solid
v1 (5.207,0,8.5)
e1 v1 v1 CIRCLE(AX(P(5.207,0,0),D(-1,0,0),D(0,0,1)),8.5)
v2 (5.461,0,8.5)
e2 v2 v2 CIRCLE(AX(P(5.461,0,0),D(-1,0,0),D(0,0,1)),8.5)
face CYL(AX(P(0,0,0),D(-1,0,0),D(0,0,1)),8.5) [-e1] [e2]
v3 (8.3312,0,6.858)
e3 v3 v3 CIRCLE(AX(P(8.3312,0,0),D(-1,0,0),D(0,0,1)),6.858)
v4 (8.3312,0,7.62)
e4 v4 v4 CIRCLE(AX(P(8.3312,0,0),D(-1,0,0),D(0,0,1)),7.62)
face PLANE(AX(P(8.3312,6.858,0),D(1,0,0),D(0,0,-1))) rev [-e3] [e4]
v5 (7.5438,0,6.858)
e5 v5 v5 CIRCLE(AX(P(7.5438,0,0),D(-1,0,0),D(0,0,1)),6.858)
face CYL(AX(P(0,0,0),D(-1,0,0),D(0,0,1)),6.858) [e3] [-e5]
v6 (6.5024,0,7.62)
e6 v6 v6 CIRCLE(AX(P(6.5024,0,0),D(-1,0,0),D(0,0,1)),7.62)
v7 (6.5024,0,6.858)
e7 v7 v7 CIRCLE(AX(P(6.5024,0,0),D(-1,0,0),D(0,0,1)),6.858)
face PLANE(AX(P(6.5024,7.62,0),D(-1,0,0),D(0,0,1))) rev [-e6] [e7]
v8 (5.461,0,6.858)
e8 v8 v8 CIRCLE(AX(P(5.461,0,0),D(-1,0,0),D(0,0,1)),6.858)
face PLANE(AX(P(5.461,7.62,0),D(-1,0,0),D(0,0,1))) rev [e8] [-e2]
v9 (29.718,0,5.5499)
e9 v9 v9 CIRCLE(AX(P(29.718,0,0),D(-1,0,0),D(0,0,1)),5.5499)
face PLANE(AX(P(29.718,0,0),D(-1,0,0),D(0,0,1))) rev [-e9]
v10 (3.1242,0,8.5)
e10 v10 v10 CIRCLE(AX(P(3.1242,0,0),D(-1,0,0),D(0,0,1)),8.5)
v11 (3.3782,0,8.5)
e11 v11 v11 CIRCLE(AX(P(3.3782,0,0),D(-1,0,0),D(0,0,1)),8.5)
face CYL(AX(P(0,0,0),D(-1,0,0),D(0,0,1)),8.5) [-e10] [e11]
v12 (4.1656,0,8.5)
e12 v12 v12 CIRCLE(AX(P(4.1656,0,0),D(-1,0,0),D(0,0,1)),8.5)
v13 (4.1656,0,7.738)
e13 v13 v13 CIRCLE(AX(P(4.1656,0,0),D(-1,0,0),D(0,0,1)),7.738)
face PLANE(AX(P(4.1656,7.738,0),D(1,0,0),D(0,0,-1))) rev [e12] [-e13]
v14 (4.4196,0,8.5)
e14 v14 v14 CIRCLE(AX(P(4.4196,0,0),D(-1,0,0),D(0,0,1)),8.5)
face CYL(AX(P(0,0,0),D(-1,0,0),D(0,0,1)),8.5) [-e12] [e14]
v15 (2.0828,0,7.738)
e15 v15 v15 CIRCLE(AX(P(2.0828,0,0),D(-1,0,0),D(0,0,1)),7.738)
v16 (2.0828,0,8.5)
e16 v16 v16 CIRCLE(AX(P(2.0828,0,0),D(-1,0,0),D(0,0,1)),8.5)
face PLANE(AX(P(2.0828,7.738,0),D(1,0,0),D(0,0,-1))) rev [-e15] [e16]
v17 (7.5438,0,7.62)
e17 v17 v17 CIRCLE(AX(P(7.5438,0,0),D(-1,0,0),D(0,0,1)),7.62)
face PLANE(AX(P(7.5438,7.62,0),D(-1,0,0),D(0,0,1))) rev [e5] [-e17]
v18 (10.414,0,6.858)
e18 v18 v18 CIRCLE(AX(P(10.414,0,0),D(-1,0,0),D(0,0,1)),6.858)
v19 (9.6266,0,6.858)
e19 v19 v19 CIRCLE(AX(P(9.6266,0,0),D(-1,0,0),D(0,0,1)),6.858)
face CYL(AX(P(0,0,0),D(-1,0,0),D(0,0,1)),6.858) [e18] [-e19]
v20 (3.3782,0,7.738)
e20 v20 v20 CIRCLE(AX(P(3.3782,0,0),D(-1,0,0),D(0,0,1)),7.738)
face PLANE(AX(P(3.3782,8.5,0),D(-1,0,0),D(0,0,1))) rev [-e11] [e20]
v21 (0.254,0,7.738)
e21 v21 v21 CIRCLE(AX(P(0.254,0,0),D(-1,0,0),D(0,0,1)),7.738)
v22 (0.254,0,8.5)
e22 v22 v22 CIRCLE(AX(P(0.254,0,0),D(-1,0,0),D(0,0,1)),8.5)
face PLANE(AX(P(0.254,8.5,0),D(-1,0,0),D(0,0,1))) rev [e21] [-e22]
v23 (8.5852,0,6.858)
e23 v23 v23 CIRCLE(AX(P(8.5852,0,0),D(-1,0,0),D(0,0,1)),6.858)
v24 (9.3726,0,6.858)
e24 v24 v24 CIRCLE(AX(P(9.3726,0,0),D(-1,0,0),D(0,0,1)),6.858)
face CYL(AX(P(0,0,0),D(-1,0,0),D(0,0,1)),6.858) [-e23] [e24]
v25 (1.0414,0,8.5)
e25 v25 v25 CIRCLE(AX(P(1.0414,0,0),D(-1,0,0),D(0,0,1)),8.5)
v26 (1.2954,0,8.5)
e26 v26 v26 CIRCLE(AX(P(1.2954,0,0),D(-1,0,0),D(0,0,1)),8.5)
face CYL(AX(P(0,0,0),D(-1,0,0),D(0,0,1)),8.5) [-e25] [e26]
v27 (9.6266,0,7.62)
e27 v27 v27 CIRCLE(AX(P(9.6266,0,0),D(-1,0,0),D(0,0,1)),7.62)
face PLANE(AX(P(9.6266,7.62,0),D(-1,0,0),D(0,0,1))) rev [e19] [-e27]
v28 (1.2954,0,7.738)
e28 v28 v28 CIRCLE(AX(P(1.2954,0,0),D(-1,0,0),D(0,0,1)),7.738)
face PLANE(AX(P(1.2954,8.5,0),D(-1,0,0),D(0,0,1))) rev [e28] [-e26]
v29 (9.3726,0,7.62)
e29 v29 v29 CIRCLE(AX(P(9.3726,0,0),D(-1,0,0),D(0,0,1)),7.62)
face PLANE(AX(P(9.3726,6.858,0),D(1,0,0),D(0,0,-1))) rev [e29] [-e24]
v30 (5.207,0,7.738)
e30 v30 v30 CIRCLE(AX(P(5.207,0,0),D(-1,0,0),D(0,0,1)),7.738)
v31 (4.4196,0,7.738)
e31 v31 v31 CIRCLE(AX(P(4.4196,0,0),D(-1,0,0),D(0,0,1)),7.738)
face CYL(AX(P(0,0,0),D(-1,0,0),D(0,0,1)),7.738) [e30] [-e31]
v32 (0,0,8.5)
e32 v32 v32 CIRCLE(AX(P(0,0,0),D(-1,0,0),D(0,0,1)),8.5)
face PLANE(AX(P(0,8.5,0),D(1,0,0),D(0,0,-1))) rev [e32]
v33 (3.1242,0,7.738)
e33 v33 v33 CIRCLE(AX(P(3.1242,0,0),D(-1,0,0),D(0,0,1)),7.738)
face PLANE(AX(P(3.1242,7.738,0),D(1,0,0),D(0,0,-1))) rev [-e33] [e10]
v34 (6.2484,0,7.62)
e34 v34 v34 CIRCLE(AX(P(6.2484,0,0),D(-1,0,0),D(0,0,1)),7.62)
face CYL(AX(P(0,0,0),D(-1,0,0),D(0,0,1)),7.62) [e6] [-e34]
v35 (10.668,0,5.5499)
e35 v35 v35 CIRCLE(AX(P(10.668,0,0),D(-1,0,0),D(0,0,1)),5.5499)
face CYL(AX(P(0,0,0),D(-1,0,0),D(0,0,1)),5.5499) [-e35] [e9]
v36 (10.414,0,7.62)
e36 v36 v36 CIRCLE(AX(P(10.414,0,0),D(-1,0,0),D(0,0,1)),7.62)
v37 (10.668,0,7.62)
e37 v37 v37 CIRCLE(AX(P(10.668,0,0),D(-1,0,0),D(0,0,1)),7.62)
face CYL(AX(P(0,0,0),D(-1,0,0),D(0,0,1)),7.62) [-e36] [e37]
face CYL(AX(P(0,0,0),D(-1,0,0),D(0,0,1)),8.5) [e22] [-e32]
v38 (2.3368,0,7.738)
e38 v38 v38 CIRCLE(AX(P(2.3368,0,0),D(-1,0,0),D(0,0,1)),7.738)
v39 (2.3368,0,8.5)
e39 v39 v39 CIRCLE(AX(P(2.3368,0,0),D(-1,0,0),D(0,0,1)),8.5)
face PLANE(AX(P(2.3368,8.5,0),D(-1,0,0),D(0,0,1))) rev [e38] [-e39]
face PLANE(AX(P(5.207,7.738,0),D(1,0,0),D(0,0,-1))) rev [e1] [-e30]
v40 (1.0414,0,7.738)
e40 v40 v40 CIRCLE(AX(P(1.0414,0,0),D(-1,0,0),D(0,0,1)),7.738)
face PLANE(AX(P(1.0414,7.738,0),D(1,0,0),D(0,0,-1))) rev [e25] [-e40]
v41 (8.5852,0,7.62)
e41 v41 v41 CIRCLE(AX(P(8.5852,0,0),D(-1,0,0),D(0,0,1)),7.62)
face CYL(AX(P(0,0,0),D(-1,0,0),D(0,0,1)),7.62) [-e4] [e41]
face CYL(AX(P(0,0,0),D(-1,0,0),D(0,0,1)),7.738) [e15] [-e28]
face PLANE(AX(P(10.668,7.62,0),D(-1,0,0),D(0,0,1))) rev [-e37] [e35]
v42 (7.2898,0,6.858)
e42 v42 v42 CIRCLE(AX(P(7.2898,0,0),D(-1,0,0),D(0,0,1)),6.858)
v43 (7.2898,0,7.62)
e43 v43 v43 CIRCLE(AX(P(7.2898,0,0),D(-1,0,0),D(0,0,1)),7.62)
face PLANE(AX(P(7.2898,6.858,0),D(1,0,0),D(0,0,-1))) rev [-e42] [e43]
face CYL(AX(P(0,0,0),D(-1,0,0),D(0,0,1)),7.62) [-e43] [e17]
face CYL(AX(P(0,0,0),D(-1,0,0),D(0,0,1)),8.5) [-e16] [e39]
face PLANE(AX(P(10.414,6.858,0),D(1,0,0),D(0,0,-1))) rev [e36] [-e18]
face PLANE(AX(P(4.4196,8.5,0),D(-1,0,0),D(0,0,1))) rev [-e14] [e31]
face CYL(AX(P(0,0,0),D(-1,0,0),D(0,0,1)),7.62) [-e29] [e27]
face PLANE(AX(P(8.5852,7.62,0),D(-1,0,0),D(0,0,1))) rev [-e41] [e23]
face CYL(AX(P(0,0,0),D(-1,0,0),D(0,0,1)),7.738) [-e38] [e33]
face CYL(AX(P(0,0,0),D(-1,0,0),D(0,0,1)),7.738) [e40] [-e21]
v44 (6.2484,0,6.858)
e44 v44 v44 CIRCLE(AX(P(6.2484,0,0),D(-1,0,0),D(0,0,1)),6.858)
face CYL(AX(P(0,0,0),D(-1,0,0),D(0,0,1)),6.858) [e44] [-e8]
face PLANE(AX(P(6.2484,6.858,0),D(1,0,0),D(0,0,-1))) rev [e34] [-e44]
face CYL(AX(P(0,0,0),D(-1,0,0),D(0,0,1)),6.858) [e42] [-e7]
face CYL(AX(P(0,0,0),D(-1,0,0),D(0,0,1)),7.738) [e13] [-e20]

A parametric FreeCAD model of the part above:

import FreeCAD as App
import Part
import Sketcher

V = App.Vector
Q = App.Units.Quantity

doc = App.newDocument("Part")
body = doc.addObject("PartDesign::Body", "Body")

# Sketch on XY plane
sketch1 = body.newObject("Sketcher::SketchObject", "Sketch")
sketch1.AttachmentSupport = (doc.getObject("XY_Plane"), [""])
sketch1.MapMode = "FlatFace"
sketch1.addGeometry([
    Part.LineSegment(V(0, 0, 0), V(29.72, 0, 0)),  # 0
    Part.LineSegment(V(29.72, 0, 0), V(29.72, 5.55, 0)),  # 1
    Part.LineSegment(V(29.72, 5.55, 0), V(10.67, 5.55, 0)),  # 2
    Part.LineSegment(V(10.67, 5.55, 0), V(10.67, 7.62, 0)),  # 3
    Part.LineSegment(V(10.67, 7.62, 0), V(10.41, 7.62, 0)),  # 4
    Part.LineSegment(V(10.41, 7.62, 0), V(10.41, 6.86, 0)),  # 5
    Part.LineSegment(V(10.41, 6.86, 0), V(9.63, 6.86, 0)),  # 6
    Part.LineSegment(V(9.63, 6.86, 0), V(9.63, 7.62, 0)),  # 7
    Part.LineSegment(V(9.63, 7.62, 0), V(9.37, 7.62, 0)),  # 8
    Part.LineSegment(V(9.37, 7.62, 0), V(9.37, 6.86, 0)),  # 9
    Part.LineSegment(V(9.37, 6.86, 0), V(8.59, 6.86, 0)),  # 10
    Part.LineSegment(V(8.59, 6.86, 0), V(8.59, 7.62, 0)),  # 11
    Part.LineSegment(V(8.59, 7.62, 0), V(8.33, 7.62, 0)),  # 12
    Part.LineSegment(V(8.33, 7.62, 0), V(8.33, 6.86, 0)),  # 13
    Part.LineSegment(V(8.33, 6.86, 0), V(7.54, 6.86, 0)),  # 14
    Part.LineSegment(V(7.54, 6.86, 0), V(7.54, 7.62, 0)),  # 15
    Part.LineSegment(V(7.54, 7.62, 0), V(7.29, 7.62, 0)),  # 16
    Part.LineSegment(V(7.29, 7.62, 0), V(7.29, 6.86, 0)),  # 17
    Part.LineSegment(V(7.29, 6.86, 0), V(6.5, 6.86, 0)),  # 18
    Part.LineSegment(V(6.5, 6.86, 0), V(6.5, 7.62, 0)),  # 19
    Part.LineSegment(V(6.5, 7.62, 0), V(6.25, 7.62, 0)),  # 20
    Part.LineSegment(V(6.25, 7.62, 0), V(6.25, 6.86, 0)),  # 21
    Part.LineSegment(V(6.25, 6.86, 0), V(5.46, 6.86, 0)),  # 22
    Part.LineSegment(V(5.46, 6.86, 0), V(5.46, 8.5, 0)),  # 23
    Part.LineSegment(V(5.46, 8.5, 0), V(5.21, 8.5, 0)),  # 24
    Part.LineSegment(V(5.21, 8.5, 0), V(5.21, 7.74, 0)),  # 25
    Part.LineSegment(V(5.21, 7.74, 0), V(4.42, 7.74, 0)),  # 26
    Part.LineSegment(V(4.42, 7.74, 0), V(4.42, 8.5, 0)),  # 27
    Part.LineSegment(V(4.42, 8.5, 0), V(4.17, 8.5, 0)),  # 28
    Part.LineSegment(V(4.17, 8.5, 0), V(4.17, 7.74, 0)),  # 29
    Part.LineSegment(V(4.17, 7.74, 0), V(3.38, 7.74, 0)),  # 30
    Part.LineSegment(V(3.38, 7.74, 0), V(3.38, 8.5, 0)),  # 31
    Part.LineSegment(V(3.38, 8.5, 0), V(3.12, 8.5, 0)),  # 32
    Part.LineSegment(V(3.12, 8.5, 0), V(3.12, 7.74, 0)),  # 33
    Part.LineSegment(V(3.12, 7.74, 0), V(2.34, 7.74, 0)),  # 34
    Part.LineSegment(V(2.34, 7.74, 0), V(2.34, 8.5, 0)),  # 35
    Part.LineSegment(V(2.34, 8.5, 0), V(2.08, 8.5, 0)),  # 36
    Part.LineSegment(V(2.08, 8.5, 0), V(2.08, 7.74, 0)),  # 37
    Part.LineSegment(V(2.08, 7.74, 0), V(1.3, 7.74, 0)),  # 38
    Part.LineSegment(V(1.3, 7.74, 0), V(1.3, 8.5, 0)),  # 39
    Part.LineSegment(V(1.3, 8.5, 0), V(1.04, 8.5, 0)),  # 40
    Part.LineSegment(V(1.04, 8.5, 0), V(1.04, 7.74, 0)),  # 41
    Part.LineSegment(V(1.04, 7.74, 0), V(0.25, 7.74, 0)),  # 42
    Part.LineSegment(V(0.25, 7.74, 0), V(0.25, 8.5, 0)),  # 43
    Part.LineSegment(V(0.25, 8.5, 0), V(0, 8.5, 0)),  # 44
    Part.LineSegment(V(0, 8.5, 0), V(0, 0, 0)),  # 45
], False)
sketch1.addConstraint([
    Sketcher.Constraint("Coincident", 0, 2, 1, 1),
    Sketcher.Constraint("Coincident", 1, 2, 2, 1),
    Sketcher.Constraint("Coincident", 2, 2, 3, 1),
    Sketcher.Constraint("Coincident", 3, 2, 4, 1),
    Sketcher.Constraint("Coincident", 4, 2, 5, 1),
    Sketcher.Constraint("Coincident", 5, 2, 6, 1),
    Sketcher.Constraint("Coincident", 6, 2, 7, 1),
    Sketcher.Constraint("Coincident", 7, 2, 8, 1),
    Sketcher.Constraint("Coincident", 8, 2, 9, 1),
    Sketcher.Constraint("Coincident", 9, 2, 10, 1),
    Sketcher.Constraint("Coincident", 10, 2, 11, 1),
    Sketcher.Constraint("Coincident", 11, 2, 12, 1),
    Sketcher.Constraint("Coincident", 12, 2, 13, 1),
    Sketcher.Constraint("Coincident", 13, 2, 14, 1),
    Sketcher.Constraint("Coincident", 14, 2, 15, 1),
    Sketcher.Constraint("Coincident", 15, 2, 16, 1),
    Sketcher.Constraint("Coincident", 16, 2, 17, 1),
    Sketcher.Constraint("Coincident", 17, 2, 18, 1),
    Sketcher.Constraint("Coincident", 18, 2, 19, 1),
    Sketcher.Constraint("Coincident", 19, 2, 20, 1),
    Sketcher.Constraint("Coincident", 20, 2, 21, 1),
    Sketcher.Constraint("Coincident", 21, 2, 22, 1),
    Sketcher.Constraint("Coincident", 22, 2, 23, 1),
    Sketcher.Constraint("Coincident", 23, 2, 24, 1),
    Sketcher.Constraint("Coincident", 24, 2, 25, 1),
    Sketcher.Constraint("Coincident", 25, 2, 26, 1),
    Sketcher.Constraint("Coincident", 26, 2, 27, 1),
    Sketcher.Constraint("Coincident", 27, 2, 28, 1),
    Sketcher.Constraint("Coincident", 28, 2, 29, 1),
    Sketcher.Constraint("Coincident", 29, 2, 30, 1),
    Sketcher.Constraint("Coincident", 30, 2, 31, 1),
    Sketcher.Constraint("Coincident", 31, 2, 32, 1),
    Sketcher.Constraint("Coincident", 32, 2, 33, 1),
    Sketcher.Constraint("Coincident", 33, 2, 34, 1),
    Sketcher.Constraint("Coincident", 34, 2, 35, 1),
    Sketcher.Constraint("Coincident", 35, 2, 36, 1),
    Sketcher.Constraint("Coincident", 36, 2, 37, 1),
    Sketcher.Constraint("Coincident", 37, 2, 38, 1),
    Sketcher.Constraint("Coincident", 38, 2, 39, 1),
    Sketcher.Constraint("Coincident", 39, 2, 40, 1),
    Sketcher.Constraint("Coincident", 40, 2, 41, 1),
    Sketcher.Constraint("Coincident", 41, 2, 42, 1),
    Sketcher.Constraint("Coincident", 42, 2, 43, 1),
    Sketcher.Constraint("Coincident", 43, 2, 44, 1),
    Sketcher.Constraint("Coincident", 44, 2, 45, 1),
    Sketcher.Constraint("Coincident", 45, 2, 0, 1),
    Sketcher.Constraint("Horizontal", 0),
    Sketcher.Constraint("Vertical", 1),
    Sketcher.Constraint("Horizontal", 2),
    Sketcher.Constraint("Vertical", 3),
    Sketcher.Constraint("Horizontal", 4),
    Sketcher.Constraint("Vertical", 5),
    Sketcher.Constraint("Horizontal", 6),
    Sketcher.Constraint("Vertical", 7),
    Sketcher.Constraint("Horizontal", 8),
    Sketcher.Constraint("Vertical", 9),
    Sketcher.Constraint("Horizontal", 10),
    Sketcher.Constraint("Vertical", 11),
    Sketcher.Constraint("Horizontal", 12),
    Sketcher.Constraint("Vertical", 13),
    Sketcher.Constraint("Horizontal", 14),
    Sketcher.Constraint("Vertical", 15),
    Sketcher.Constraint("Horizontal", 16),
    Sketcher.Constraint("Vertical", 17),
    Sketcher.Constraint("Horizontal", 18),
    Sketcher.Constraint("Vertical", 19),
    Sketcher.Constraint("Horizontal", 20),
    Sketcher.Constraint("Vertical", 21),
    Sketcher.Constraint("Horizontal", 22),
    Sketcher.Constraint("Vertical", 23),
    Sketcher.Constraint("Horizontal", 24),
    Sketcher.Constraint("Vertical", 25),
    Sketcher.Constraint("Horizontal", 26),
    Sketcher.Constraint("Vertical", 27),
    Sketcher.Constraint("Horizontal", 28),
    Sketcher.Constraint("Vertical", 29),
    Sketcher.Constraint("Horizontal", 30),
    Sketcher.Constraint("Vertical", 31),
    Sketcher.Constraint("Horizontal", 32),
    Sketcher.Constraint("Vertical", 33),
    Sketcher.Constraint("Horizontal", 34),
    Sketcher.Constraint("Vertical", 35),
    Sketcher.Constraint("Horizontal", 36),
    Sketcher.Constraint("Vertical", 37),
    Sketcher.Constraint("Horizontal", 38),
    Sketcher.Constraint("Vertical", 39),
    Sketcher.Constraint("Horizontal", 40),
    Sketcher.Constraint("Vertical", 41),
    Sketcher.Constraint("Horizontal", 42),
    Sketcher.Constraint("Vertical", 43),
    Sketcher.Constraint("Horizontal", 44),
    Sketcher.Constraint("Vertical", 45),
    Sketcher.Constraint("Coincident", 45, 2, -1, 1),
    Sketcher.Constraint("Horizontal", 4, 2, 7, 2),
    Sketcher.Constraint("Horizontal", 6, 2, 9, 2),
    Sketcher.Constraint("Horizontal", 8, 2, 11, 2),
    Sketcher.Constraint("Horizontal", 10, 2, 13, 2),
    Sketcher.Constraint("Horizontal", 12, 2, 15, 2),
    Sketcher.Constraint("Horizontal", 14, 2, 17, 2),
    Sketcher.Constraint("Horizontal", 16, 2, 19, 2),
    Sketcher.Constraint("Horizontal", 18, 2, 21, 2),
    Sketcher.Constraint("Horizontal", 24, 2, 27, 2),
    Sketcher.Constraint("Horizontal", 26, 2, 29, 2),
    Sketcher.Constraint("Horizontal", 28, 2, 31, 2),
    Sketcher.Constraint("Horizontal", 30, 2, 33, 2),
    Sketcher.Constraint("Horizontal", 32, 2, 35, 2),
    Sketcher.Constraint("Horizontal", 34, 2, 37, 2),
    Sketcher.Constraint("Horizontal", 36, 2, 39, 2),
    Sketcher.Constraint("Horizontal", 38, 2, 41, 2),
    Sketcher.Constraint("Horizontal", 40, 2, 43, 2),
    Sketcher.Constraint("Equal", 4, 8),
    Sketcher.Constraint("Equal", 6, 10),
    Sketcher.Constraint("Equal", 8, 12),
    Sketcher.Constraint("Equal", 10, 14),
    Sketcher.Constraint("Equal", 12, 16),
    Sketcher.Constraint("Equal", 14, 18),
    Sketcher.Constraint("Equal", 16, 20),
    Sketcher.Constraint("Equal", 18, 22),
    Sketcher.Constraint("Equal", 20, 24),
    Sketcher.Constraint("Equal", 22, 26),
    Sketcher.Constraint("Equal", 24, 28),
    Sketcher.Constraint("Equal", 26, 30),
    Sketcher.Constraint("Equal", 28, 32),
    Sketcher.Constraint("Equal", 30, 34),
    Sketcher.Constraint("Equal", 32, 36),
    Sketcher.Constraint("Equal", 34, 38),
    Sketcher.Constraint("Equal", 36, 40),
    Sketcher.Constraint("Equal", 38, 42),
    Sketcher.Constraint("Equal", 40, 44),
    Sketcher.Constraint("Equal", 21, 25),
    Sketcher.Constraint("DistanceX", 0, 1, 0, 2, Q("1.17 in")),
    Sketcher.Constraint("DistanceX", 2, 2, 2, 1, Q("0.75 in")),
    Sketcher.Constraint("DistanceX", 4, 2, 4, 1, Q("0.01 in")),
    Sketcher.Constraint("DistanceY", 5, 2, 5, 1, Q("0.03 in")),
    Sketcher.Constraint("DistanceY", -1, 1, 3, 2, Q("0.3 in")),
    Sketcher.Constraint("DistanceY", 1, 1, 1, 2, Q("0.2185 in")),
    Sketcher.Constraint("DistanceY", 23, 1, 23, 2, Q("1.642 mm")),
])
revolution = body.newObject("PartDesign::Revolution", "Revolution")
revolution.Profile = sketch1
revolution.ReferenceAxis = (sketch1, ["H_Axis"])
revolution.Angle = 360

doc.recompute()
